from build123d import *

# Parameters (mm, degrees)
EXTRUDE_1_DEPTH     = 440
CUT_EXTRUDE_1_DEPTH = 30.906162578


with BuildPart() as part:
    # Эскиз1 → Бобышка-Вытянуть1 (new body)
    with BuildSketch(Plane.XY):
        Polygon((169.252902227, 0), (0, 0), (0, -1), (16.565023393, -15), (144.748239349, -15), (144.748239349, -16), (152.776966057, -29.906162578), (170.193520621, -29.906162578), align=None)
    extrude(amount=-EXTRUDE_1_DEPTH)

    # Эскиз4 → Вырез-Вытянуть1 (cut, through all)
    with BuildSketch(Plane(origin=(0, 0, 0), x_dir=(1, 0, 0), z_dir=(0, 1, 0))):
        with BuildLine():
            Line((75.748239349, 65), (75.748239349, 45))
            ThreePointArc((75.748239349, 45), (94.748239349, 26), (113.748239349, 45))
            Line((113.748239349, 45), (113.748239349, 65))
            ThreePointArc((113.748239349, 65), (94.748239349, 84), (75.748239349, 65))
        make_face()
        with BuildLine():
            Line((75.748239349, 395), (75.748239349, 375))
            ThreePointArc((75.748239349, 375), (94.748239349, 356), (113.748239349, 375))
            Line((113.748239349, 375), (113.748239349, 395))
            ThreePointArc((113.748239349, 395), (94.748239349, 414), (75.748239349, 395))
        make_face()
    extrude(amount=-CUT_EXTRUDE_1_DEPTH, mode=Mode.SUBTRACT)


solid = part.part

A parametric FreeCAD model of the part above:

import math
import FreeCAD as App
import Part
import Sketcher
from FreeCAD import Vector
Q = App.Units.Quantity

doc = App.newDocument("Part")
body = doc.addObject("PartDesign::Body", "Body")

# Sketch on XY plane
sketch1 = doc.addObject("Sketcher::SketchObject", "Sketch")
body.addObject(sketch1)
sketch1.AttachmentSupport = (doc.XY_Plane, [""])
sketch1.MapMode = "FlatFace"
sketch1.addGeometry(Part.LineSegment(Vector(169.252902, 0, 0), Vector(0, 0, 0)), False)
sketch1.addGeometry(Part.LineSegment(Vector(0, 0, 0), Vector(0, -1, 0)), False)
sketch1.addGeometry(Part.LineSegment(Vector(0, -1, 0), Vector(16.565023, -15, 0)), False)
sketch1.addGeometry(Part.LineSegment(Vector(16.565023, -15, 0), Vector(144.748239, -15, 0)), False)
sketch1.addGeometry(Part.LineSegment(Vector(144.748239, -15, 0), Vector(144.748239, -16, 0)), False)
sketch1.addGeometry(Part.LineSegment(Vector(144.748239, -16, 0), Vector(152.776966, -29.906163, 0)), False)
sketch1.addGeometry(Part.LineSegment(Vector(152.776966, -29.906163, 0), Vector(170.193521, -29.906163, 0)), False)
sketch1.addGeometry(Part.LineSegment(Vector(170.193521, -29.906163, 0), Vector(169.252902, 0, 0)), False)
sketch1.addConstraint(Sketcher.Constraint("Coincident", 0, 2, 1, 1))
sketch1.addConstraint(Sketcher.Constraint("Coincident", 1, 2, 2, 1))
sketch1.addConstraint(Sketcher.Constraint("Coincident", 2, 2, 3, 1))
sketch1.addConstraint(Sketcher.Constraint("Coincident", 3, 2, 4, 1))
sketch1.addConstraint(Sketcher.Constraint("Coincident", 4, 2, 5, 1))
sketch1.addConstraint(Sketcher.Constraint("Coincident", 5, 2, 6, 1))
sketch1.addConstraint(Sketcher.Constraint("Coincident", 6, 2, 7, 1))
sketch1.addConstraint(Sketcher.Constraint("Coincident", 7, 2, 0, 1))
sketch1.addConstraint(Sketcher.Constraint("Horizontal", 0))
sketch1.addConstraint(Sketcher.Constraint("Vertical", 1))
sketch1.addConstraint(Sketcher.Constraint("Horizontal", 3))
sketch1.addConstraint(Sketcher.Constraint("Vertical", 4))
sketch1.addConstraint(Sketcher.Constraint("Horizontal", 6))
sketch1.addConstraint(Sketcher.Constraint("Coincident", 0, 2, -1, 1))
sketch1.addConstraint(Sketcher.Constraint("Equal", 1, 4))
sketch1.addConstraint(Sketcher.Constraint("DistanceY", 1, 2, 1, 1, Q("1 mm")))
sketch1.addConstraint(Sketcher.Constraint("Angle", 5, Q("-60 deg")))
sketch1.addConstraint(Sketcher.Constraint("DistanceY", 2, 2, -1, 1, Q("15 mm")))
sketch1.addConstraint(Sketcher.Constraint("Distance", 7, Q("29.920951 mm")))
sketch1.addConstraint(Sketcher.Constraint("DistanceX", 0, 2, 0, 1, Q("169.252902 mm")))
sketch1.addConstraint(Sketcher.Constraint("DistanceX", 3, 1, 3, 2, Q("128.183216 mm")))
sketch1.addConstraint(Sketcher.Constraint("DistanceX", 6, 1, 6, 2, Q("17.416555 mm")))
sketch1.addConstraint(Sketcher.Constraint("DistanceX", -1, 1, 3, 2, Q("144.748239 mm")))
pad1 = doc.addObject("PartDesign::Pad", "Pad")
body.addObject(pad1)
pad1.Profile = sketch1
pad1.Length = 440
pad1.Reversed = True

# Sketch on XZ plane
sketch2 = doc.addObject("Sketcher::SketchObject", "Sketch001")
body.addObject(sketch2)
sketch2.AttachmentSupport = (doc.XZ_Plane, [""])
sketch2.MapMode = "FlatFace"
sketch2.addGeometry(Part.LineSegment(Vector(75.748239, -65, 0), Vector(75.748239, -45, 0)), False)
sketch2.addGeometry(Part.ArcOfCircle(Part.Circle(Vector(94.748239, -45, 0), Vector(0, 0, 1), 19), math.radians(0), math.radians(180)), False)
sketch2.addGeometry(Part.LineSegment(Vector(113.748239, -45, 0), Vector(113.748239, -65, 0)), False)
sketch2.addGeometry(Part.ArcOfCircle(Part.Circle(Vector(94.748239, -65, 0), Vector(0, 0, 1), 19), math.radians(180), math.radians(360)), False)
sketch2.addGeometry(Part.LineSegment(Vector(75.748239, -395, 0), Vector(75.748239, -375, 0)), False)
sketch2.addGeometry(Part.ArcOfCircle(Part.Circle(Vector(94.748239, -375, 0), Vector(0, 0, 1), 19), math.radians(0), math.radians(180)), False)
sketch2.addGeometry(Part.LineSegment(Vector(113.748239, -375, 0), Vector(113.748239, -395, 0)), False)
sketch2.addGeometry(Part.ArcOfCircle(Part.Circle(Vector(94.748239, -395, 0), Vector(0, 0, 1), 19), math.radians(180), math.radians(360)), False)
sketch2.addConstraint(Sketcher.Constraint("Tangent", 0, 2, 1, 2))
sketch2.addConstraint(Sketcher.Constraint("Tangent", 1, 1, 2, 1))
sketch2.addConstraint(Sketcher.Constraint("Tangent", 2, 2, 3, 2))
sketch2.addConstraint(Sketcher.Constraint("Tangent", 3, 1, 0, 1))
sketch2.addConstraint(Sketcher.Constraint("Tangent", 4, 2, 5, 2))
sketch2.addConstraint(Sketcher.Constraint("Tangent", 5, 1, 6, 1))
sketch2.addConstraint(Sketcher.Constraint("Tangent", 6, 2, 7, 2))
sketch2.addConstraint(Sketcher.Constraint("Tangent", 7, 1, 4, 1))
sketch2.addConstraint(Sketcher.Constraint("Vertical", 0))
sketch2.addConstraint(Sketcher.Constraint("Vertical", 2))
sketch2.addConstraint(Sketcher.Constraint("Vertical", 4))
sketch2.addConstraint(Sketcher.Constraint("Vertical", 6))
sketch2.addConstraint(Sketcher.Constraint("Equal", 3, 5))
sketch2.addConstraint(Sketcher.Constraint("Vertical", 3, 3, 5, 3))
sketch2.addConstraint(Sketcher.Constraint("Equal", 2, 4))
sketch2.addConstraint(Sketcher.Constraint("Radius", 1, Q("19 mm")))
sketch2.addConstraint(Sketcher.Constraint("DistanceY", 0, 1, 0, 2, Q("20 mm")))
sketch2.addConstraint(Sketcher.Constraint("DistanceY", 1, 3, -1, 1, Q("45 mm")))
sketch2.addConstraint(Sketcher.Constraint("DistanceY", 5, 3, -1, 1, Q("375 mm")))
sketch2.addConstraint(Sketcher.Constraint("DistanceX", -1, 1, 1, 3, Q("94.748239 mm")))
pocket1 = doc.addObject("PartDesign::Pocket", "Pocket")
body.addObject(pocket1)
pocket1.Profile = sketch2
pocket1.Type = "ThroughAll"
pocket1.Reversed = True

doc.recompute()
